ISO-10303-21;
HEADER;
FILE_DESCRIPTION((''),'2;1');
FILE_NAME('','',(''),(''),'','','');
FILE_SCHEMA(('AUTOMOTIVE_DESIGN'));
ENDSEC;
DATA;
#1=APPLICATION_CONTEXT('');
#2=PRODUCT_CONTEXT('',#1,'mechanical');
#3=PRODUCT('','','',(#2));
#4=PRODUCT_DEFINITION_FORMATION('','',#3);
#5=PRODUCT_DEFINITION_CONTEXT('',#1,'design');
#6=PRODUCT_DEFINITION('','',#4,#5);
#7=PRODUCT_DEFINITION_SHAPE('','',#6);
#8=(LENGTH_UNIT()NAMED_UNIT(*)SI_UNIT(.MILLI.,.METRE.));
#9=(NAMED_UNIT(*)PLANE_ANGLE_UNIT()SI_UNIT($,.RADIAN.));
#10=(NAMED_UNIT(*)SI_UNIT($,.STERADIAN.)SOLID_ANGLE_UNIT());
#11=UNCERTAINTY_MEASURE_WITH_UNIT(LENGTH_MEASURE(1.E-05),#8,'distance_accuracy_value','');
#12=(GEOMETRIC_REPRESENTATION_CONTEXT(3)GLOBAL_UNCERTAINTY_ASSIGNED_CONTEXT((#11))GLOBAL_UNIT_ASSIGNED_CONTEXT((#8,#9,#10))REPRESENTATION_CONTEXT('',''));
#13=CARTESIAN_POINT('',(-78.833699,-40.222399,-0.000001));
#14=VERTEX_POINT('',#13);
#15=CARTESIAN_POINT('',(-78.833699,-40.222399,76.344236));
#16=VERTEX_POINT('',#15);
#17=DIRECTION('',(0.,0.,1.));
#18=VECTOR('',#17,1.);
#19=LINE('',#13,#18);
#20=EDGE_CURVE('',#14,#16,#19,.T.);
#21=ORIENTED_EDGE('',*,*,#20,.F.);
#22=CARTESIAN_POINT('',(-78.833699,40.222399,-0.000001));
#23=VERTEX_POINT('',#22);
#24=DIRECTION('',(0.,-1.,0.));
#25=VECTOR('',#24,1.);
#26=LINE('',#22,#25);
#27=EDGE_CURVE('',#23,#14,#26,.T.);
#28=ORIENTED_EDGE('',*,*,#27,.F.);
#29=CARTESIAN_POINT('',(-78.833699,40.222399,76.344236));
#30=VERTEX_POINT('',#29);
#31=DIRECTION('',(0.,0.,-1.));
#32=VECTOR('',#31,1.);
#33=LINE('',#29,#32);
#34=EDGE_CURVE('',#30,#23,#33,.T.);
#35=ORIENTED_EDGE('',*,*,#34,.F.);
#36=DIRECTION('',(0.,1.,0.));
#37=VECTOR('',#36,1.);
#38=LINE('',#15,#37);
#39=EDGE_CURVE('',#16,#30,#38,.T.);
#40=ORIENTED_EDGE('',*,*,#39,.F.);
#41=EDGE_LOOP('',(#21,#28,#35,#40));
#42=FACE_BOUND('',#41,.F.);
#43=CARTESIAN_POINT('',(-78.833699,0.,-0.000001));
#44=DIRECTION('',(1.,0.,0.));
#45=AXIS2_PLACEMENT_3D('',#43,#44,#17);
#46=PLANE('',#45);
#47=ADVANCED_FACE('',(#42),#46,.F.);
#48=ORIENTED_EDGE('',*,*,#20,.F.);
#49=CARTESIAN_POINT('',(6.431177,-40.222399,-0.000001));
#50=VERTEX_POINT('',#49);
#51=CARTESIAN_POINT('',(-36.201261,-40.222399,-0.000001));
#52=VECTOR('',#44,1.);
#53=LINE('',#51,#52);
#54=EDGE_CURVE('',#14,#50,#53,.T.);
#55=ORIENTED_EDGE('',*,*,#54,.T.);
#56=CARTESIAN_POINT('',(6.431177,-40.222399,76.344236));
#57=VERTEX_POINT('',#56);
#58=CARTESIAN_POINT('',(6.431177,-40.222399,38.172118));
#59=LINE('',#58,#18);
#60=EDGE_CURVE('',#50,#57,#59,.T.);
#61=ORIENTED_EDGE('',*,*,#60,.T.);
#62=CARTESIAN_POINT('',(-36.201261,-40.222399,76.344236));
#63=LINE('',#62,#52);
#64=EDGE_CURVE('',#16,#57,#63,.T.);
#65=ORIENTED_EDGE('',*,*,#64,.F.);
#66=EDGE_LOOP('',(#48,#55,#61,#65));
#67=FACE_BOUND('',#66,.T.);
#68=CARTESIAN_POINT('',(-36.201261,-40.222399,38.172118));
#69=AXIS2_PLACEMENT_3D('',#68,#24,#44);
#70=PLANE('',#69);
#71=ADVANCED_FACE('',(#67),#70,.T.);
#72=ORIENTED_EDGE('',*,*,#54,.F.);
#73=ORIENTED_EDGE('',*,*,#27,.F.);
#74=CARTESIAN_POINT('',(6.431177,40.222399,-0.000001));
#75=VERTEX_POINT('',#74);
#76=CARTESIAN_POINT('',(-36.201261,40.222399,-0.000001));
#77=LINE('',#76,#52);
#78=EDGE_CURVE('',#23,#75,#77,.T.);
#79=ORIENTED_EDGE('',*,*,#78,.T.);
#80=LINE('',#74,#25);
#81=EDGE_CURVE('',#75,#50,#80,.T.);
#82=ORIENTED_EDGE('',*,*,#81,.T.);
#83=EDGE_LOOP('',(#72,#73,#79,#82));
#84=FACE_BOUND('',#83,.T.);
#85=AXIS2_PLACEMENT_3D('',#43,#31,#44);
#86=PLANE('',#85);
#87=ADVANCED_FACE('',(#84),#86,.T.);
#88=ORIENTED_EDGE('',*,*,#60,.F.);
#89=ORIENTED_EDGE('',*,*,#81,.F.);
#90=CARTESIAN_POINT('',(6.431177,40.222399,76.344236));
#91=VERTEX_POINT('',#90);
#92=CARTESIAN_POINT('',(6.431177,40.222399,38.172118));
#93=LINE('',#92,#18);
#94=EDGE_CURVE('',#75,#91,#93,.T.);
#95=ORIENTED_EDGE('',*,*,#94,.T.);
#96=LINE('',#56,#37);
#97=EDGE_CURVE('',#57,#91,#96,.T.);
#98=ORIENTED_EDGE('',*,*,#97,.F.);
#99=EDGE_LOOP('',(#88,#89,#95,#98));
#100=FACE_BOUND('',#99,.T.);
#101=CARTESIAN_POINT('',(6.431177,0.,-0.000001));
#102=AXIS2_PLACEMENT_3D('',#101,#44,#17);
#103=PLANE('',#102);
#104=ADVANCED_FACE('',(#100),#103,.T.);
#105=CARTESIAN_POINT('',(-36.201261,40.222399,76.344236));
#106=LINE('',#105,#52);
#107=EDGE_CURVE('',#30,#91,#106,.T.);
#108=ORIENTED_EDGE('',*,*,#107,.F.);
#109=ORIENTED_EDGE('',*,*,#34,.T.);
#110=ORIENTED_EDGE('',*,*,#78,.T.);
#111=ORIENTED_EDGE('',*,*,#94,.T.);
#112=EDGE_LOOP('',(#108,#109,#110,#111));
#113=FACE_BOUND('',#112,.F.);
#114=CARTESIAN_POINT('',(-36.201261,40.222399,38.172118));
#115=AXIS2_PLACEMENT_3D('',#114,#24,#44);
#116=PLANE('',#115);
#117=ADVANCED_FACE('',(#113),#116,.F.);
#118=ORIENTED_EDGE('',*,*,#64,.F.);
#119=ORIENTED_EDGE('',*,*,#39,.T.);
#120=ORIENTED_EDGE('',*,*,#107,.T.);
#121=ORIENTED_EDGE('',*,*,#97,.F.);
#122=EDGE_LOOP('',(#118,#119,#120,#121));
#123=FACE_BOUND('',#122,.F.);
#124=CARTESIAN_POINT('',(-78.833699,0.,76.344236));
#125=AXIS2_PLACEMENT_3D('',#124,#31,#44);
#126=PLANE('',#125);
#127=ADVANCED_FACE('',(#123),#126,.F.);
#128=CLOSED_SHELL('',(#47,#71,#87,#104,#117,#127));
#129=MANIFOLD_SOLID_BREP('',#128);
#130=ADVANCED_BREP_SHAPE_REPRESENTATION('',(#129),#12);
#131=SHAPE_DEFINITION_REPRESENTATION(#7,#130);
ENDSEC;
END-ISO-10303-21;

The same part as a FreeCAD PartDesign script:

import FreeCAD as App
import Part
import Sketcher
Q = App.Units.Quantity

doc = App.newDocument("Part")
body = doc.addObject("PartDesign::Body", "Body")

# Sketch on XZ plane
sketch1 = body.newObject("Sketcher::SketchObject", "Sketch")
sketch1.AttachmentSupport = (doc.getObject("XZ_Plane"), [""])
sketch1.MapMode = "FlatFace"
sketch1.addGeometry([
    Part.LineSegment(App.Vector(-79, 76, 0), App.Vector(-79, 0, 0)),
    Part.LineSegment(App.Vector(-79, 0, 0), App.Vector(6, 0, 0)),
    Part.LineSegment(App.Vector(6, 0, 0), App.Vector(6, 76, 0)),
    Part.LineSegment(App.Vector(6, 76, 0), App.Vector(-79, 76, 0)),
], False)
sketch1.addConstraint([
    Sketcher.Constraint("Coincident", 0, 2, 1, 1),
    Sketcher.Constraint("Coincident", 1, 2, 2, 1),
    Sketcher.Constraint("Coincident", 2, 2, 3, 1),
    Sketcher.Constraint("Coincident", 3, 2, 0, 1),
    Sketcher.Constraint("Vertical", 0),
    Sketcher.Constraint("Horizontal", 1),
    Sketcher.Constraint("Vertical", 2),
    Sketcher.Constraint("Horizontal", 3),
    Sketcher.Constraint("PointOnObject", 0, 2, -1),
    Sketcher.Constraint("DistanceX", 0, 2, -1, 1, Q("78.833699 mm")),
    Sketcher.Constraint("DistanceX", 1, 1, 1, 2, Q("85.264876 mm")),
    Sketcher.Constraint("DistanceY", 0, 2, 0, 1, Q("76.344237 mm")),
])
pad1 = body.newObject("PartDesign::Pad", "Pad")
pad1.Profile = sketch1
pad1.Length = 80.444798
pad1.Midplane = True

# Sketch on YZ plane
sketch2 = body.newObject("Sketcher::SketchObject", "Sketch001")
sketch2.AttachmentSupport = (doc.getObject("YZ_Plane"), [""])
sketch2.MapMode = "FlatFace"
sketch2.AttachmentOffset = App.Placement(App.Vector(0, 0, -78.833699), App.Rotation())
sketch2.addGeometry([
    Part.LineSegment(App.Vector(40, 76, 0), App.Vector(40, 0, 0)),
    Part.LineSegment(App.Vector(40, 0, 0), App.Vector(-40, 0, 0)),
    Part.LineSegment(App.Vector(-40, 0, 0), App.Vector(-40, 76, 0)),
    Part.LineSegment(App.Vector(-40, 76, 0), App.Vector(40, 76, 0)),
], False)
sketch2.addConstraint([
    Sketcher.Constraint("Coincident", 0, 2, 1, 1),
    Sketcher.Constraint("Coincident", 1, 2, 2, 1),
    Sketcher.Constraint("Coincident", 2, 2, 3, 1),
    Sketcher.Constraint("Coincident", 3, 2, 0, 1),
    Sketcher.Constraint("Vertical", 0),
    Sketcher.Constraint("Horizontal", 1),
    Sketcher.Constraint("Vertical", 2),
    Sketcher.Constraint("Horizontal", 3),
    Sketcher.Constraint("Symmetric", 0, 2, 1, 2, -1, 1),
    Sketcher.Constraint("DistanceX", 1, 2, 1, 1, Q("80.444798 mm")),
    Sketcher.Constraint("DistanceY", 0, 2, 0, 1, Q("76.344236 mm")),
])
pad2 = body.newObject("PartDesign::Pad", "Pad001")
pad2.Profile = sketch2
pad2.Length = Q("1 in")

doc.recompute()
